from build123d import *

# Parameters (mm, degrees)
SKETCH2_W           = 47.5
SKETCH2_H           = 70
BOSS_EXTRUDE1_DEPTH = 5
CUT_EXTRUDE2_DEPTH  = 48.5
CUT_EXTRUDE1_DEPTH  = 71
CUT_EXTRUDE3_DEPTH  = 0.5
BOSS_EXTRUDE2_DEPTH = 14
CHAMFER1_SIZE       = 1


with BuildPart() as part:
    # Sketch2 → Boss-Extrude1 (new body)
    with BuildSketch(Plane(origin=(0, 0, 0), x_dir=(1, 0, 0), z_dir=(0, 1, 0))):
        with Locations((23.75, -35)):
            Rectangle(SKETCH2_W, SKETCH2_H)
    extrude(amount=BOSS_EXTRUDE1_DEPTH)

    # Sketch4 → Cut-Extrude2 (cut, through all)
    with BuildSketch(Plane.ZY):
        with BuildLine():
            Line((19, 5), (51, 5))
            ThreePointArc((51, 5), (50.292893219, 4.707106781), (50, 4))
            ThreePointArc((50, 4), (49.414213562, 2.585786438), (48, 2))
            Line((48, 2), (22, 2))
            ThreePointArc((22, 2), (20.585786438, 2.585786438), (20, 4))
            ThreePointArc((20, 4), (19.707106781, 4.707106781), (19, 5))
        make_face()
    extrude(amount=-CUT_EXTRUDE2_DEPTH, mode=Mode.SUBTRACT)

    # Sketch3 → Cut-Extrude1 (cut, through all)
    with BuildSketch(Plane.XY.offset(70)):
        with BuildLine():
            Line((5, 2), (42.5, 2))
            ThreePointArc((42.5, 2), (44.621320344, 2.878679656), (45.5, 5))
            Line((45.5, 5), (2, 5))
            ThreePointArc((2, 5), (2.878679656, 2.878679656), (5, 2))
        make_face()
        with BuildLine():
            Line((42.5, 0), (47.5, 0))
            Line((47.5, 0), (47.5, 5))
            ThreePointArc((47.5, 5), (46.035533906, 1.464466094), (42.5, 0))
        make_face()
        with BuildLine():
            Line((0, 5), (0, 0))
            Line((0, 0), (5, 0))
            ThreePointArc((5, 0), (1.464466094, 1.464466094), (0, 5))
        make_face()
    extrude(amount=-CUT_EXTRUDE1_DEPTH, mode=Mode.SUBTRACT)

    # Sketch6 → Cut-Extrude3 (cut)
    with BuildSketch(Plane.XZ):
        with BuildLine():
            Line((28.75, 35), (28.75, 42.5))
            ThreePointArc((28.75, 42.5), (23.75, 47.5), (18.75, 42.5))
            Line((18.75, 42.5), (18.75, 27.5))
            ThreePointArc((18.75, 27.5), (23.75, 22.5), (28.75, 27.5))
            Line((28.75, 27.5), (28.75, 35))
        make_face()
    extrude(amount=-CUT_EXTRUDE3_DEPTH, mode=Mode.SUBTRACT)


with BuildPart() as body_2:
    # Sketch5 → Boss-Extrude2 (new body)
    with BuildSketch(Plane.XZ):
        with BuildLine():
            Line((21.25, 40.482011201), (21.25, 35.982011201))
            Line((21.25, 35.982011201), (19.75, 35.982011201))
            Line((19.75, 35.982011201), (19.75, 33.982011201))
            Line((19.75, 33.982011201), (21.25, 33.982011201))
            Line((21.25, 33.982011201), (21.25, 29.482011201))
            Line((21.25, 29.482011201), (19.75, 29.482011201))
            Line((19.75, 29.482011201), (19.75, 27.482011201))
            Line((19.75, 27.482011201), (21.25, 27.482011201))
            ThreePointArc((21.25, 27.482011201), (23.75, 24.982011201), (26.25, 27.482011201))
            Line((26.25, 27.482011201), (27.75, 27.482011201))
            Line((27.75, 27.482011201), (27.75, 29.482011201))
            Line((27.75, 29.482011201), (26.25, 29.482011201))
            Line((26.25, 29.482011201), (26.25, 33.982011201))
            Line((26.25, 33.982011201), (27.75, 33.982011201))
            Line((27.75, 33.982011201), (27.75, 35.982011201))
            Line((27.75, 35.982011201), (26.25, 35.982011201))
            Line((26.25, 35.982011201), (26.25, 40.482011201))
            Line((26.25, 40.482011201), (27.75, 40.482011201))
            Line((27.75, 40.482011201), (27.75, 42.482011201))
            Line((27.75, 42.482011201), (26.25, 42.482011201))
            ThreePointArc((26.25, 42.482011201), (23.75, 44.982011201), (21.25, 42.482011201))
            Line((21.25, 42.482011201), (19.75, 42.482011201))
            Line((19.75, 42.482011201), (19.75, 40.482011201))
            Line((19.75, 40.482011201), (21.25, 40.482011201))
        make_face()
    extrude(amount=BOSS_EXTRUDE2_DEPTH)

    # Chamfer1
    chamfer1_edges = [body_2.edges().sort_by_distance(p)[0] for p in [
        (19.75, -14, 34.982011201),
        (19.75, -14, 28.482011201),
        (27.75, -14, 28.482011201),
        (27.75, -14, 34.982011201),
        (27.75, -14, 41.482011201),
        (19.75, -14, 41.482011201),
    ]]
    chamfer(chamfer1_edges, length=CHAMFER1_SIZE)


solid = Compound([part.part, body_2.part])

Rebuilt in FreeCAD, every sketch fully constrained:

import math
import FreeCAD as App
import Part
import Sketcher
Q = App.Units.Quantity


def edges_at(feature, points):
    """Names of the edges that pass closest to the given points."""
    edges = feature.Shape.Edges
    near = lambda p: min(range(len(edges)), key=lambda i: edges[i].distToShape(Part.Vertex(*p))[0])
    return sorted({f"Edge{near(p) + 1}" for p in points})

doc = App.newDocument("Part")
params = doc.addObject("Spreadsheet::Sheet", "Params")
for row, (alias, value) in enumerate([
    ("sketch1_height", "70 mm"),
    ("sketch1_width", "47.5 mm"),
    ("pad1_length", "5 mm"),
    ("sketch2_radius", "1 mm"),
    ("sketch2_radius2", "2 mm"),
    ("sketch2_height", "32 mm"),
    ("sketch3_radius", "3 mm"),
    ("sketch3_radius2", "5 mm"),
    ("sketch3_width", "37.5 mm"),
    ("sketch4_radius", "5 mm"),
    ("sketch4_height", "15 mm"),
    ("pocket3_length", "0.5 mm"),
    ("sketch5_radius", "2.5 mm"),
    ("sketch5_height", "2 mm"),
    ("sketch5_width", "1.5 mm"),
    ("sketch5_height2", "4.5 mm"),
    ("pad2_length", "14 mm"),
    ("chamfer_size", "1 mm"),
], start=1):
    params.set(f"A{row}", alias)
    params.set(f"B{row}", "=" + value)
    params.setAlias(f"B{row}", alias)

body = doc.addObject("PartDesign::Body", "Body")

# Sketch on XZ plane
sketch1 = body.newObject("Sketcher::SketchObject", "Sketch")
sketch1.AttachmentSupport = (doc.getObject("XZ_Plane"), [""])
sketch1.MapMode = "FlatFace"
sketch1.addGeometry(Part.LineSegment(App.Vector(0, 0, 0), App.Vector(0, 70, 0)), False)
sketch1.addGeometry(Part.LineSegment(App.Vector(0, 70, 0), App.Vector(48, 70, 0)), False)
sketch1.addGeometry(Part.LineSegment(App.Vector(48, 70, 0), App.Vector(48, 0, 0)), False)
sketch1.addGeometry(Part.LineSegment(App.Vector(48, 0, 0), App.Vector(0, 0, 0)), False)
sketch1.addConstraint(Sketcher.Constraint("Coincident", 0, 2, 1, 1))
sketch1.addConstraint(Sketcher.Constraint("Coincident", 1, 2, 2, 1))
sketch1.addConstraint(Sketcher.Constraint("Coincident", 2, 2, 3, 1))
sketch1.addConstraint(Sketcher.Constraint("Coincident", 3, 2, 0, 1))
sketch1.addConstraint(Sketcher.Constraint("Vertical", 0))
sketch1.addConstraint(Sketcher.Constraint("Horizontal", 1))
sketch1.addConstraint(Sketcher.Constraint("Vertical", 2))
sketch1.addConstraint(Sketcher.Constraint("Horizontal", 3))
sketch1.addConstraint(Sketcher.Constraint("Coincident", 3, 2, -1, 1))
sketch1.addConstraint(Sketcher.Constraint("DistanceY", 0, 1, 0, 2, Q("70 mm")))
sketch1.addConstraint(Sketcher.Constraint("DistanceX", 1, 1, 1, 2, Q("47.5 mm")))
sketch1.setExpression("Constraints[9]", "Params.sketch1_height")
sketch1.setExpression("Constraints[10]", "Params.sketch1_width")
pad1 = body.newObject("PartDesign::Pad", "Pad")
pad1.Profile = sketch1
pad1.setExpression("Length", "Params.pad1_length")
pad1.Reversed = True

# Sketch on YZ plane
sketch2 = body.newObject("Sketcher::SketchObject", "Sketch001")
sketch2.AttachmentSupport = (doc.getObject("YZ_Plane"), [""])
sketch2.MapMode = "FlatFace"
sketch2.addGeometry(Part.LineSegment(App.Vector(5, 51, 0), App.Vector(5, 19, 0)), False)
sketch2.addGeometry(Part.ArcOfCircle(Part.Circle(App.Vector(4, 19, 0), App.Vector(0, 0, 1), 1), math.radians(0), math.radians(90)), False)
sketch2.addGeometry(Part.ArcOfCircle(Part.Circle(App.Vector(4, 22, 0), App.Vector(0, 0, 1), 2), math.radians(-180), math.radians(-90)), False)
sketch2.addGeometry(Part.LineSegment(App.Vector(2, 22, 0), App.Vector(2, 48, 0)), False)
sketch2.addGeometry(Part.ArcOfCircle(Part.Circle(App.Vector(4, 48, 0), App.Vector(0, 0, 1), 2), math.radians(90), math.radians(180)), False)
sketch2.addGeometry(Part.ArcOfCircle(Part.Circle(App.Vector(4, 51, 0), App.Vector(0, 0, 1), 1), math.radians(-90), math.radians(0)), False)
sketch2.addConstraint(Sketcher.Constraint("Tangent", 0, 2, 1, 1))
sketch2.addConstraint(Sketcher.Constraint("Tangent", 1, 2, 2, 2))
sketch2.addConstraint(Sketcher.Constraint("Tangent", 2, 1, 3, 1))
sketch2.addConstraint(Sketcher.Constraint("Tangent", 3, 2, 4, 2))
sketch2.addConstraint(Sketcher.Constraint("Tangent", 4, 1, 5, 1))
sketch2.addConstraint(Sketcher.Constraint("Tangent", 5, 2, 0, 1))
sketch2.addConstraint(Sketcher.Constraint("Vertical", 0))
sketch2.addConstraint(Sketcher.Constraint("Vertical", 3))
sketch2.addConstraint(Sketcher.Constraint("Equal", 2, 4))
sketch2.addConstraint(Sketcher.Constraint("Equal", 1, 5))
sketch2.addConstraint(Sketcher.Constraint("Vertical", 1, 3, 2, 3))
sketch2.addConstraint(Sketcher.Constraint("Radius", 1, Q("1 mm")))
sketch2.addConstraint(Sketcher.Constraint("Radius", 2, Q("2 mm")))
sketch2.addConstraint(Sketcher.Constraint("DistanceY", 0, 2, 0, 1, Q("32 mm")))
sketch2.addConstraint(Sketcher.Constraint("DistanceX", -1, 1, 1, 3, Q("4 mm")))
sketch2.addConstraint(Sketcher.Constraint("DistanceY", -1, 1, 1, 3, Q("19 mm")))
sketch2.setExpression("Constraints[11]", "Params.sketch2_radius")
sketch2.setExpression("Constraints[12]", "Params.sketch2_radius2")
sketch2.setExpression("Constraints[13]", "Params.sketch2_height")
pocket1 = body.newObject("PartDesign::Pocket", "Pocket")
pocket1.Profile = sketch2
pocket1.Type = "ThroughAll"
pocket1.Reversed = True

# Sketch on XY plane
sketch3 = body.newObject("Sketcher::SketchObject", "Sketch002")
sketch3.AttachmentSupport = (doc.getObject("XY_Plane"), [""])
sketch3.MapMode = "FlatFace"
sketch3.AttachmentOffset = App.Placement(App.Vector(0, 0, 70), App.Rotation())
sketch3.addGeometry(Part.LineSegment(App.Vector(5, 2, 0), App.Vector(42.5, 2, 0)), False)
sketch3.addGeometry(Part.ArcOfCircle(Part.Circle(App.Vector(42.5, 5, 0), App.Vector(0, 0, 1), 3), math.radians(-90), math.radians(0)), False)
sketch3.addGeometry(Part.LineSegment(App.Vector(45.5, 5, 0), App.Vector(2, 5, 0)), False)
sketch3.addGeometry(Part.ArcOfCircle(Part.Circle(App.Vector(5, 5, 0), App.Vector(0, 0, 1), 3), math.radians(180), math.radians(270)), False)
sketch3.addGeometry(Part.LineSegment(App.Vector(42.5, 0, 0), App.Vector(47.5, 0, 0)), False)
sketch3.addGeometry(Part.LineSegment(App.Vector(47.5, 0, 0), App.Vector(47.5, 5, 0)), False)
sketch3.addGeometry(Part.ArcOfCircle(Part.Circle(App.Vector(42.5, 5, 0), App.Vector(0, 0, 1), 5), math.radians(-90), math.radians(0)), False)
sketch3.addGeometry(Part.LineSegment(App.Vector(0, 5, 0), App.Vector(0, 0, 0)), False)
sketch3.addGeometry(Part.LineSegment(App.Vector(0, 0, 0), App.Vector(5, 0, 0)), False)
sketch3.addGeometry(Part.ArcOfCircle(Part.Circle(App.Vector(5, 5, 0), App.Vector(0, 0, 1), 5), math.radians(180), math.radians(270)), False)
sketch3.addConstraint(Sketcher.Constraint("Tangent", 0, 2, 1, 1))
sketch3.addConstraint(Sketcher.Constraint("Coincident", 1, 2, 2, 1))
sketch3.addConstraint(Sketcher.Constraint("Coincident", 2, 2, 3, 1))
sketch3.addConstraint(Sketcher.Constraint("Tangent", 3, 2, 0, 1))
sketch3.addConstraint(Sketcher.Constraint("Coincident", 4, 2, 5, 1))
sketch3.addConstraint(Sketcher.Constraint("Tangent", 5, 2, 6, 2))
sketch3.addConstraint(Sketcher.Constraint("Tangent", 6, 1, 4, 1))
sketch3.addConstraint(Sketcher.Constraint("Coincident", 7, 2, 8, 1))
sketch3.addConstraint(Sketcher.Constraint("Tangent", 8, 2, 9, 2))
sketch3.addConstraint(Sketcher.Constraint("Tangent", 9, 1, 7, 1))
sketch3.addConstraint(Sketcher.Constraint("Horizontal", 0))
sketch3.addConstraint(Sketcher.Constraint("Horizontal", 2))
sketch3.addConstraint(Sketcher.Constraint("Horizontal", 4))
sketch3.addConstraint(Sketcher.Constraint("Vertical", 5))
sketch3.addConstraint(Sketcher.Constraint("Vertical", 7))
sketch3.addConstraint(Sketcher.Constraint("Horizontal", 8))
sketch3.addConstraint(Sketcher.Constraint("Coincident", 7, 2, -1, 1))
sketch3.addConstraint(Sketcher.Constraint("Coincident", 6, 3, 1, 3))
sketch3.addConstraint(Sketcher.Constraint("Coincident", 9, 3, 3, 3))
sketch3.addConstraint(Sketcher.Constraint("Equal", 1, 3))
sketch3.addConstraint(Sketcher.Constraint("Equal", 6, 9))
sketch3.addConstraint(Sketcher.Constraint("Horizontal", 9, 3, 1, 2))
sketch3.addConstraint(Sketcher.Constraint("Radius", 1, Q("3 mm")))
sketch3.addConstraint(Sketcher.Constraint("Radius", 6, Q("5 mm")))
sketch3.addConstraint(Sketcher.Constraint("DistanceX", 0, 1, 0, 2, Q("37.5 mm")))
sketch3.setExpression("Constraints[22]", "Params.sketch3_radius")
sketch3.setExpression("Constraints[23]", "Params.sketch3_radius2")
sketch3.setExpression("Constraints[24]", "Params.sketch3_width")
pocket2 = body.newObject("PartDesign::Pocket", "Pocket001")
pocket2.Profile = sketch3
pocket2.Type = "ThroughAll"

# Sketch on XZ plane
sketch4 = body.newObject("Sketcher::SketchObject", "Sketch003")
sketch4.AttachmentSupport = (doc.getObject("XZ_Plane"), [""])
sketch4.MapMode = "FlatFace"
sketch4.addGeometry(Part.ArcOfCircle(Part.Circle(App.Vector(24, 42, 0), App.Vector(0, 0, 1), 5), math.radians(0), math.radians(180)), False)
sketch4.addGeometry(Part.LineSegment(App.Vector(19, 42, 0), App.Vector(19, 28, 0)), False)
sketch4.addGeometry(Part.ArcOfCircle(Part.Circle(App.Vector(24, 28, 0), App.Vector(0, 0, 1), 5), math.radians(180), math.radians(360)), False)
sketch4.addGeometry(Part.LineSegment(App.Vector(29, 28, 0), App.Vector(29, 42, 0)), False)
sketch4.addConstraint(Sketcher.Constraint("Tangent", 0, 2, 1, 1))
sketch4.addConstraint(Sketcher.Constraint("Tangent", 1, 2, 2, 1))
sketch4.addConstraint(Sketcher.Constraint("Tangent", 2, 2, 3, 1))
sketch4.addConstraint(Sketcher.Constraint("Tangent", 3, 2, 0, 1))
sketch4.addConstraint(Sketcher.Constraint("Vertical", 1))
sketch4.addConstraint(Sketcher.Constraint("Vertical", 3))
sketch4.addConstraint(Sketcher.Constraint("Radius", 0, Q("5 mm")))
sketch4.addConstraint(Sketcher.Constraint("DistanceY", 1, 2, 1, 1, Q("15 mm")))
sketch4.addConstraint(Sketcher.Constraint("DistanceY", -1, 1, 0, 3, Q("42.5 mm")))
sketch4.addConstraint(Sketcher.Constraint("DistanceX", -1, 1, 0, 3, Q("23.75 mm")))
sketch4.setExpression("Constraints[6]", "Params.sketch4_radius")
sketch4.setExpression("Constraints[7]", "Params.sketch4_height")
pocket3 = body.newObject("PartDesign::Pocket", "Pocket002")
pocket3.Profile = sketch4
pocket3.setExpression("Length", "Params.pocket3_length")
body2 = doc.addObject("PartDesign::Body", "Body001")

# Sketch on XZ plane
sketch5 = body2.newObject("Sketcher::SketchObject", "Sketch004")
sketch5.AttachmentSupport = (doc.getObject("XZ_Plane001"), [""])
sketch5.MapMode = "FlatFace"
sketch5.addGeometry(Part.LineSegment(App.Vector(21.2, 40.5, 0), App.Vector(21.2, 36, 0)), False)
sketch5.addGeometry(Part.LineSegment(App.Vector(21.2, 36, 0), App.Vector(19.8, 36, 0)), False)
sketch5.addGeometry(Part.LineSegment(App.Vector(19.8, 36, 0), App.Vector(19.8, 34, 0)), False)
sketch5.addGeometry(Part.LineSegment(App.Vector(19.8, 34, 0), App.Vector(21.2, 34, 0)), False)
sketch5.addGeometry(Part.LineSegment(App.Vector(21.2, 34, 0), App.Vector(21.2, 29.5, 0)), False)
sketch5.addGeometry(Part.LineSegment(App.Vector(21.2, 29.5, 0), App.Vector(19.8, 29.5, 0)), False)
sketch5.addGeometry(Part.LineSegment(App.Vector(19.8, 29.5, 0), App.Vector(19.8, 27.5, 0)), False)
sketch5.addGeometry(Part.LineSegment(App.Vector(19.8, 27.5, 0), App.Vector(21.2, 27.5, 0)), False)
sketch5.addGeometry(Part.ArcOfCircle(Part.Circle(App.Vector(23.8, 27.5, 0), App.Vector(0, 0, 1), 2.5), math.radians(180), math.radians(360)), False)
sketch5.addGeometry(Part.LineSegment(App.Vector(26.2, 27.5, 0), App.Vector(27.8, 27.5, 0)), False)
sketch5.addGeometry(Part.LineSegment(App.Vector(27.8, 27.5, 0), App.Vector(27.8, 29.5, 0)), False)
sketch5.addGeometry(Part.LineSegment(App.Vector(27.8, 29.5, 0), App.Vector(26.2, 29.5, 0)), False)
sketch5.addGeometry(Part.LineSegment(App.Vector(26.2, 29.5, 0), App.Vector(26.2, 34, 0)), False)
sketch5.addGeometry(Part.LineSegment(App.Vector(26.2, 34, 0), App.Vector(27.8, 34, 0)), False)
sketch5.addGeometry(Part.LineSegment(App.Vector(27.8, 34, 0), App.Vector(27.8, 36, 0)), False)
sketch5.addGeometry(Part.LineSegment(App.Vector(27.8, 36, 0), App.Vector(26.2, 36, 0)), False)
sketch5.addGeometry(Part.LineSegment(App.Vector(26.2, 36, 0), App.Vector(26.2, 40.5, 0)), False)
sketch5.addGeometry(Part.LineSegment(App.Vector(26.2, 40.5, 0), App.Vector(27.8, 40.5, 0)), False)
sketch5.addGeometry(Part.LineSegment(App.Vector(27.8, 40.5, 0), App.Vector(27.8, 42.5, 0)), False)
sketch5.addGeometry(Part.LineSegment(App.Vector(27.8, 42.5, 0), App.Vector(26.2, 42.5, 0)), False)
sketch5.addGeometry(Part.ArcOfCircle(Part.Circle(App.Vector(23.8, 42.5, 0), App.Vector(0, 0, 1), 2.5), math.radians(0), math.radians(180)), False)
sketch5.addGeometry(Part.LineSegment(App.Vector(21.2, 42.5, 0), App.Vector(19.8, 42.5, 0)), False)
sketch5.addGeometry(Part.LineSegment(App.Vector(19.8, 42.5, 0), App.Vector(19.8, 40.5, 0)), False)
sketch5.addGeometry(Part.LineSegment(App.Vector(19.8, 40.5, 0), App.Vector(21.2, 40.5, 0)), False)
sketch5.addConstraint(Sketcher.Constraint("Coincident", 0, 2, 1, 1))
sketch5.addConstraint(Sketcher.Constraint("Coincident", 1, 2, 2, 1))
sketch5.addConstraint(Sketcher.Constraint("Coincident", 2, 2, 3, 1))
sketch5.addConstraint(Sketcher.Constraint("Coincident", 3, 2, 4, 1))
sketch5.addConstraint(Sketcher.Constraint("Coincident", 4, 2, 5, 1))
sketch5.addConstraint(Sketcher.Constraint("Coincident", 5, 2, 6, 1))
sketch5.addConstraint(Sketcher.Constraint("Coincident", 6, 2, 7, 1))
sketch5.addConstraint(Sketcher.Constraint("Coincident", 7, 2, 8, 1))
sketch5.addConstraint(Sketcher.Constraint("Coincident", 8, 2, 9, 1))
sketch5.addConstraint(Sketcher.Constraint("Coincident", 9, 2, 10, 1))
sketch5.addConstraint(Sketcher.Constraint("Coincident", 10, 2, 11, 1))
sketch5.addConstraint(Sketcher.Constraint("Coincident", 11, 2, 12, 1))
sketch5.addConstraint(Sketcher.Constraint("Coincident", 12, 2, 13, 1))
sketch5.addConstraint(Sketcher.Constraint("Coincident", 13, 2, 14, 1))
sketch5.addConstraint(Sketcher.Constraint("Coincident", 14, 2, 15, 1))
sketch5.addConstraint(Sketcher.Constraint("Coincident", 15, 2, 16, 1))
sketch5.addConstraint(Sketcher.Constraint("Coincident", 16, 2, 17, 1))
sketch5.addConstraint(Sketcher.Constraint("Coincident", 17, 2, 18, 1))
sketch5.addConstraint(Sketcher.Constraint("Coincident", 18, 2, 19, 1))
sketch5.addConstraint(Sketcher.Constraint("Coincident", 19, 2, 20, 1))
sketch5.addConstraint(Sketcher.Constraint("Coincident", 20, 2, 21, 1))
sketch5.addConstraint(Sketcher.Constraint("Coincident", 21, 2, 22, 1))
sketch5.addConstraint(Sketcher.Constraint("Coincident", 22, 2, 23, 1))
sketch5.addConstraint(Sketcher.Constraint("Coincident", 23, 2, 0, 1))
sketch5.addConstraint(Sketcher.Constraint("Vertical", 0))
sketch5.addConstraint(Sketcher.Constraint("Horizontal", 1))
sketch5.addConstraint(Sketcher.Constraint("Vertical", 2))
sketch5.addConstraint(Sketcher.Constraint("Horizontal", 3))
sketch5.addConstraint(Sketcher.Constraint("Vertical", 4))
sketch5.addConstraint(Sketcher.Constraint("Horizontal", 5))
sketch5.addConstraint(Sketcher.Constraint("Vertical", 6))
sketch5.addConstraint(Sketcher.Constraint("Horizontal", 7))
sketch5.addConstraint(Sketcher.Constraint("Horizontal", 9))
sketch5.addConstraint(Sketcher.Constraint("Vertical", 10))
sketch5.addConstraint(Sketcher.Constraint("Horizontal", 11))
sketch5.addConstraint(Sketcher.Constraint("Vertical", 12))
sketch5.addConstraint(Sketcher.Constraint("Horizontal", 13))
sketch5.addConstraint(Sketcher.Constraint("Vertical", 14))
sketch5.addConstraint(Sketcher.Constraint("Horizontal", 15))
sketch5.addConstraint(Sketcher.Constraint("Vertical", 16))
sketch5.addConstraint(Sketcher.Constraint("Horizontal", 17))
sketch5.addConstraint(Sketcher.Constraint("Vertical", 18))
sketch5.addConstraint(Sketcher.Constraint("Horizontal", 19))
sketch5.addConstraint(Sketcher.Constraint("Horizontal", 21))
sketch5.addConstraint(Sketcher.Constraint("Vertical", 22))
sketch5.addConstraint(Sketcher.Constraint("Horizontal", 23))
sketch5.addConstraint(Sketcher.Constraint("Equal", 8, 20))
sketch5.addConstraint(Sketcher.Constraint("Horizontal", 8, 3, 6, 2))
sketch5.addConstraint(Sketcher.Constraint("Horizontal", 7, 2, 8, 2))
sketch5.addConstraint(Sketcher.Constraint("Horizontal", 5, 2, 10, 2))
sketch5.addConstraint(Sketcher.Constraint("Horizontal", 3, 2, 12, 2))
sketch5.addConstraint(Sketcher.Constraint("Horizontal", 1, 2, 14, 2))
sketch5.addConstraint(Sketcher.Constraint("Horizontal", 20, 3, 18, 2))
sketch5.addConstraint(Sketcher.Constraint("Horizontal", 19, 2, 20, 2))
sketch5.addConstraint(Sketcher.Constraint("Horizontal", 17, 2, 22, 2))
sketch5.addConstraint(Sketcher.Constraint("Vertical", 8, 3, 20, 3))
sketch5.addConstraint(Sketcher.Constraint("Vertical", 0, 2, 3, 2))
sketch5.addConstraint(Sketcher.Constraint("Vertical", 2, 2, 5, 2))
sketch5.addConstraint(Sketcher.Constraint("Vertical", 4, 2, 7, 2))
sketch5.addConstraint(Sketcher.Constraint("Vertical", 8, 2, 11, 2))
sketch5.addConstraint(Sketcher.Constraint("Vertical", 10, 2, 13, 2))
sketch5.addConstraint(Sketcher.Constraint("Vertical", 12, 2, 15, 2))
sketch5.addConstraint(Sketcher.Constraint("Vertical", 14, 2, 17, 2))
sketch5.addConstraint(Sketcher.Constraint("Vertical", 6, 2, 21, 2))
sketch5.addConstraint(Sketcher.Constraint("Equal", 7, 9))
sketch5.addConstraint(Sketcher.Constraint("Equal", 0, 4))
sketch5.addConstraint(Sketcher.Constraint("Equal", 2, 6))
sketch5.addConstraint(Sketcher.Constraint("Equal", 14, 18))
sketch5.addConstraint(Sketcher.Constraint("Radius", 8, Q("2.5 mm")))
sketch5.addConstraint(Sketcher.Constraint("DistanceY", 2, 2, 2, 1, Q("2 mm")))
sketch5.addConstraint(Sketcher.Constraint("DistanceX", 1, 2, 1, 1, Q("1.5 mm")))
sketch5.addConstraint(Sketcher.Constraint("DistanceY", 0, 2, 0, 1, Q("4.5 mm")))
sketch5.addConstraint(Sketcher.Constraint("DistanceX", -1, 1, 8, 3, Q("23.75 mm")))
sketch5.addConstraint(Sketcher.Constraint("DistanceY", -1, 1, 8, 3, Q("27.482011 mm")))
sketch5.setExpression("Constraints[68]", "Params.sketch5_radius")
sketch5.setExpression("Constraints[69]", "Params.sketch5_height")
sketch5.setExpression("Constraints[70]", "Params.sketch5_width")
sketch5.setExpression("Constraints[71]", "Params.sketch5_height2")
pad2 = body2.newObject("PartDesign::Pad", "Pad001")
pad2.Profile = sketch5
pad2.setExpression("Length", "Params.pad2_length")
doc.recompute()

chamfer = body2.newObject("PartDesign::Chamfer", "Chamfer")
chamfer.Base = (pad2, edges_at(pad2, [
    (19.75, -14, 34.982),
    (19.75, -14, 28.482),
    (27.75, -14, 28.482),
    (27.75, -14, 34.982),
    (27.75, -14, 41.482),
    (19.75, -14, 41.482),
]))
chamfer.setExpression("Size", "Params.chamfer_size")

doc.recompute()
